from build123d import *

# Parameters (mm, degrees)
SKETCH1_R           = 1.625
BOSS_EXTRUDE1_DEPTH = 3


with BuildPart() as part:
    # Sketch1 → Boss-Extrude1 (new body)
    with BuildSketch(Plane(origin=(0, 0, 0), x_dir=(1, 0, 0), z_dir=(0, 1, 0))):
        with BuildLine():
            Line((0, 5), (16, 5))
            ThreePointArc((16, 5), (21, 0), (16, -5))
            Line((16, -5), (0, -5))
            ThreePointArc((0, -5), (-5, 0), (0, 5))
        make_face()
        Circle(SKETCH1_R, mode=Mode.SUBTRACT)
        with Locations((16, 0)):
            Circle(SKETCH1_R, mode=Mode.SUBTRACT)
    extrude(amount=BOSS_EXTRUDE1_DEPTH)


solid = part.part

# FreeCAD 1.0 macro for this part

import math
import FreeCAD as App
import Part
import Sketcher
from FreeCAD import Vector
Q = App.Units.Quantity

doc = App.newDocument("Part")
body = doc.addObject("PartDesign::Body", "Body")

sketch1 = body.newObject("Sketcher::SketchObject", "Sketch")
sketch1.AttachmentSupport = (doc.getObject("XZ_Plane"), [""])
sketch1.MapMode = "FlatFace"
sketch1.addGeometry([
    Part.LineSegment(Vector(16, -5, 0), Vector(0, -5, 0)),
    Part.ArcOfCircle(Part.Circle(Vector(0, 0, 0), Vector(0, 0, 1), 5), math.radians(90), math.radians(270)),
    Part.LineSegment(Vector(0, 5, 0), Vector(16, 5, 0)),
    Part.ArcOfCircle(Part.Circle(Vector(16, 0, 0), Vector(0, 0, 1), 5), math.radians(-90), math.radians(90)),
    Part.Circle(Vector(16, 0, 0), Vector(0, 0, 1), 1.6),
    Part.Circle(Vector(0, 0, 0), Vector(0, 0, 1), 1.6),
], False)
sketch1.addConstraint([
    Sketcher.Constraint("Tangent", 0, 2, 1, 2),
    Sketcher.Constraint("Tangent", 1, 1, 2, 1),
    Sketcher.Constraint("Tangent", 2, 2, 3, 2),
    Sketcher.Constraint("Tangent", 3, 1, 0, 1),
    Sketcher.Constraint("Horizontal", 0),
    Sketcher.Constraint("Horizontal", 2),
    Sketcher.Constraint("Coincident", 1, 3, -1, 1),
    Sketcher.Constraint("Coincident", 5, 3, -1, 1),
    Sketcher.Constraint("Coincident", 4, 3, 3, 3),
    Sketcher.Constraint("Equal", 4, 5),
    Sketcher.Constraint("Radius", 1, Q("5 mm")),
    Sketcher.Constraint("Diameter", 4, Q("3.25 mm")),
    Sketcher.Constraint("DistanceX", 0, 2, 0, 1, Q("16 mm")),
])
pad1 = body.newObject("PartDesign::Pad", "Pad")
pad1.Profile = sketch1
pad1.Length = 3
pad1.Reversed = True

doc.recompute()
